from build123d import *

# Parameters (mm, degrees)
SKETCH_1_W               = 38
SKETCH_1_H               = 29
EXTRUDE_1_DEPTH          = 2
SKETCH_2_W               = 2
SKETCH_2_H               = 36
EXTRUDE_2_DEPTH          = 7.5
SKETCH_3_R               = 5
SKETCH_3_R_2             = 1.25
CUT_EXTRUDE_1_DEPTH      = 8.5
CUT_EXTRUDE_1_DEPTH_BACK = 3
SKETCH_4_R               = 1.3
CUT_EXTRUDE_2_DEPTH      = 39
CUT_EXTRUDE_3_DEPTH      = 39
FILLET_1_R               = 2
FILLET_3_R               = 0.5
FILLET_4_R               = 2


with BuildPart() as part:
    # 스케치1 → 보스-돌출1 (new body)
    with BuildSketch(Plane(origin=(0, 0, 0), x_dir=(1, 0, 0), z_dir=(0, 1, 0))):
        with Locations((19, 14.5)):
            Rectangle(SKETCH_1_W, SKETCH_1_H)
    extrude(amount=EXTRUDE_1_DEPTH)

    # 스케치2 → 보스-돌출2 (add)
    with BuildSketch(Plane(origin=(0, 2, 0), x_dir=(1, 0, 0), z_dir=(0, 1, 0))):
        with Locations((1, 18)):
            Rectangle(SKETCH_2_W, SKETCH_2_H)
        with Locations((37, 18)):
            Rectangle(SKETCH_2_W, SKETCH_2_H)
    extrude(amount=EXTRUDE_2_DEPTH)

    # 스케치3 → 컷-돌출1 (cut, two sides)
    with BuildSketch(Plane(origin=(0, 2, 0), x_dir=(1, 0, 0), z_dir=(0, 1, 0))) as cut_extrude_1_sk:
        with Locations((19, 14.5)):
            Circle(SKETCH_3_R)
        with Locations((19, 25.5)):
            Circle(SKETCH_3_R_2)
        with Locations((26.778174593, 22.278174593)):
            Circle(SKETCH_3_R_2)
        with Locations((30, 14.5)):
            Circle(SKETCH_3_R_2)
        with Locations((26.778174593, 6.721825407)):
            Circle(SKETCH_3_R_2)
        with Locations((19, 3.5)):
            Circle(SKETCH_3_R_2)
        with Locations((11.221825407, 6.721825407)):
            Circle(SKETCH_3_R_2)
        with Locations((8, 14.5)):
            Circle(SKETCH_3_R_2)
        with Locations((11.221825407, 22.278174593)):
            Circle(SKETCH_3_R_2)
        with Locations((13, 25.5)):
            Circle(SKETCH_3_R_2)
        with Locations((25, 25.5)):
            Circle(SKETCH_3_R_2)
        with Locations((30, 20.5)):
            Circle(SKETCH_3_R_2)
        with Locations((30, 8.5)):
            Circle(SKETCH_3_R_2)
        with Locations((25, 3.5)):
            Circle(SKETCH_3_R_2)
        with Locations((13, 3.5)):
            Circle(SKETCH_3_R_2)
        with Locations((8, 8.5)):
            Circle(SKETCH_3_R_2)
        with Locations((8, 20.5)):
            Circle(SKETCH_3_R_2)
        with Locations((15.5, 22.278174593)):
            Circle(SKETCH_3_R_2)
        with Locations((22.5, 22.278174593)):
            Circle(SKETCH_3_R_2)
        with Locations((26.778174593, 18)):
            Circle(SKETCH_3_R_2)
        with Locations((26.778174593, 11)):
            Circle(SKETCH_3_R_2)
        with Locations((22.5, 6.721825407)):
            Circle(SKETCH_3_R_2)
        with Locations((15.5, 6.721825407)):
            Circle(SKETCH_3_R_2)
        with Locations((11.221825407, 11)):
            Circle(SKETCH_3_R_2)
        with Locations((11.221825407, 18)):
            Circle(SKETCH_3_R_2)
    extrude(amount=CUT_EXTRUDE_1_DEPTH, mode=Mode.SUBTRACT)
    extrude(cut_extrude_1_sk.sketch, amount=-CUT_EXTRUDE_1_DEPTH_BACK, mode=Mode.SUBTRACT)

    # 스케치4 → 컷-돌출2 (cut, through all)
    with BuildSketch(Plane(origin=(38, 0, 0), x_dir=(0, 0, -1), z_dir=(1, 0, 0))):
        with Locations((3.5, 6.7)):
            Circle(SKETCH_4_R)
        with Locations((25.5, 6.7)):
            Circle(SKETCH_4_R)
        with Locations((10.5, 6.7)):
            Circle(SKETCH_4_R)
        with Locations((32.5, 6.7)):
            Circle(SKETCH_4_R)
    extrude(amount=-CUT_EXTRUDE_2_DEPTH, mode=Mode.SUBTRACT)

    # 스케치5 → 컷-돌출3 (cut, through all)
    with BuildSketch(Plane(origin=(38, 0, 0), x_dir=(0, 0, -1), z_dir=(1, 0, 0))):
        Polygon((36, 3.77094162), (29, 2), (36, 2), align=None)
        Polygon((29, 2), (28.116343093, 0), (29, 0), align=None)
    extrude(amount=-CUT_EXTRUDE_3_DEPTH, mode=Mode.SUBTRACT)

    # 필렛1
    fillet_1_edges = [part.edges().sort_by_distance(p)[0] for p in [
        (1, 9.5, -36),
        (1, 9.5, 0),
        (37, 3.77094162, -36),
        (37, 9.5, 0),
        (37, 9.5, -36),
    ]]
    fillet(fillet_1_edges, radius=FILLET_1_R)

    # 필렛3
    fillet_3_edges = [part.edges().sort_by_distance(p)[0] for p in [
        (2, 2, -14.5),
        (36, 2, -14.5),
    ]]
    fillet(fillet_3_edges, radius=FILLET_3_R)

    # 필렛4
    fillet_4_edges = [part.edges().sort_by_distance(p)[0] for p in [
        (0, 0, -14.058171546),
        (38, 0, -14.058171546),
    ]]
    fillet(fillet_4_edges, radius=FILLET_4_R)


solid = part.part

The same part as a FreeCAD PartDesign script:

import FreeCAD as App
import Part
import Sketcher

V = App.Vector
Q = App.Units.Quantity


def edges_at(feature, points):
    """Names of the edges that pass closest to the given points."""
    edges = feature.Shape.Edges
    near = lambda p: min(range(len(edges)), key=lambda i: edges[i].distToShape(Part.Vertex(*p))[0])
    return sorted({f"Edge{near(p) + 1}" for p in points})


def add_polygon(sketch, points):
    """Adds a closed chain of lines whose ends are joined by coincident constraints."""
    first, n = sketch.GeometryCount, len(points)
    for a, b in zip(points, points[1:] + points[:1]):
        sketch.addGeometry(Part.LineSegment(App.Vector(*a, 0), App.Vector(*b, 0)), False)
    for i in range(n):
        sketch.addConstraint(Sketcher.Constraint("Coincident", first + i, 2, first + (i + 1) % n, 1))

doc = App.newDocument("Part")
body = doc.addObject("PartDesign::Body", "Body")

sketch1 = body.newObject("Sketcher::SketchObject", "Sketch")
sketch1.AttachmentSupport = (doc.getObject("XZ_Plane"), [""])
sketch1.MapMode = "FlatFace"
add_polygon(sketch1, [(0, -29), (0, 0), (38, 0), (38, -29)])
sketch1.addConstraint([
    Sketcher.Constraint("Vertical", 0),
    Sketcher.Constraint("Horizontal", 1),
    Sketcher.Constraint("Vertical", 2),
    Sketcher.Constraint("Horizontal", 3),
    Sketcher.Constraint("Coincident", 0, 2, -1, 1),
    Sketcher.Constraint("DistanceX", 1, 1, 1, 2, Q("38 mm")),
    Sketcher.Constraint("DistanceY", 0, 1, 0, 2, Q("29 mm")),
])
pad1 = body.newObject("PartDesign::Pad", "Pad")
pad1.Profile = sketch1
pad1.Length = 2
pad1.Reversed = True

sketch2 = body.newObject("Sketcher::SketchObject", "Sketch001")
sketch2.AttachmentSupport = (doc.getObject("XZ_Plane"), [""])
sketch2.MapMode = "FlatFace"
sketch2.AttachmentOffset = App.Placement(V(0, 0, -2), App.Rotation())
add_polygon(sketch2, [(0, -36), (0, 0), (2, 0), (2, -36)])
add_polygon(sketch2, [(36, -36), (36, 0), (38, 0), (38, -36)])
sketch2.addConstraint([
    Sketcher.Constraint("Vertical", 0),
    Sketcher.Constraint("Horizontal", 1),
    Sketcher.Constraint("Vertical", 2),
    Sketcher.Constraint("Horizontal", 3),
    Sketcher.Constraint("Vertical", 4),
    Sketcher.Constraint("Horizontal", 5),
    Sketcher.Constraint("Vertical", 6),
    Sketcher.Constraint("Horizontal", 7),
    Sketcher.Constraint("Coincident", 0, 2, -1, 1),
    Sketcher.Constraint("PointOnObject", 4, 2, -1),
    Sketcher.Constraint("Horizontal", 3, 2, 6, 2),
    Sketcher.Constraint("Equal", 3, 5),
    Sketcher.Constraint("DistanceX", 1, 1, 1, 2, Q("2 mm")),
    Sketcher.Constraint("DistanceY", 0, 1, 0, 2, Q("36 mm")),
    Sketcher.Constraint("DistanceX", -1, 1, 4, 2, Q("36 mm")),
])
pad2 = body.newObject("PartDesign::Pad", "Pad001")
pad2.Profile = sketch2
pad2.Length = 7.5
pad2.Reversed = True

sketch3 = body.newObject("Sketcher::SketchObject", "Sketch002")
sketch3.AttachmentSupport = (doc.getObject("XZ_Plane"), [""])
sketch3.MapMode = "FlatFace"
sketch3.AttachmentOffset = App.Placement(V(0, 0, -2), App.Rotation())
sketch3.addGeometry([
    Part.Circle(V(19, -14.5, 0), V(0, 0, 1), 5),
    Part.Circle(V(19, -25.5, 0), V(0, 0, 1), 1.2),
    Part.Circle(V(26.8, -22.3, 0), V(0, 0, 1), 1.2),
    Part.Circle(V(30, -14.5, 0), V(0, 0, 1), 1.2),
    Part.Circle(V(26.8, -6.7, 0), V(0, 0, 1), 1.2),
    Part.Circle(V(19, -3.5, 0), V(0, 0, 1), 1.2),
    Part.Circle(V(11.2, -6.7, 0), V(0, 0, 1), 1.2),
    Part.Circle(V(8, -14.5, 0), V(0, 0, 1), 1.2),
    Part.Circle(V(11.2, -22.3, 0), V(0, 0, 1), 1.2),
    Part.Circle(V(13, -25.5, 0), V(0, 0, 1), 1.2),
    Part.Circle(V(25, -25.5, 0), V(0, 0, 1), 1.2),
    Part.Circle(V(30, -20.5, 0), V(0, 0, 1), 1.2),
    Part.Circle(V(30, -8.5, 0), V(0, 0, 1), 1.2),
    Part.Circle(V(25, -3.5, 0), V(0, 0, 1), 1.2),
    Part.Circle(V(13, -3.5, 0), V(0, 0, 1), 1.2),
    Part.Circle(V(8, -8.5, 0), V(0, 0, 1), 1.2),
    Part.Circle(V(8, -20.5, 0), V(0, 0, 1), 1.2),
    Part.Circle(V(15.5, -22.3, 0), V(0, 0, 1), 1.2),
    Part.Circle(V(22.5, -22.3, 0), V(0, 0, 1), 1.2),
    Part.Circle(V(26.8, -18, 0), V(0, 0, 1), 1.2),
    Part.Circle(V(26.8, -11, 0), V(0, 0, 1), 1.2),
    Part.Circle(V(22.5, -6.7, 0), V(0, 0, 1), 1.2),
    Part.Circle(V(15.5, -6.7, 0), V(0, 0, 1), 1.2),
    Part.Circle(V(11.2, -11, 0), V(0, 0, 1), 1.2),
    Part.Circle(V(11.2, -18, 0), V(0, 0, 1), 1.2),
], False)
sketch3.addConstraint([
    Sketcher.Constraint("Equal", 1, 2),
    Sketcher.Constraint("Equal", 2, 3),
    Sketcher.Constraint("Equal", 3, 4),
    Sketcher.Constraint("Equal", 4, 5),
    Sketcher.Constraint("Equal", 5, 6),
    Sketcher.Constraint("Equal", 6, 7),
    Sketcher.Constraint("Equal", 7, 8),
    Sketcher.Constraint("Equal", 8, 9),
    Sketcher.Constraint("Equal", 9, 10),
    Sketcher.Constraint("Equal", 10, 11),
    Sketcher.Constraint("Equal", 11, 12),
    Sketcher.Constraint("Equal", 12, 13),
    Sketcher.Constraint("Equal", 13, 14),
    Sketcher.Constraint("Equal", 14, 15),
    Sketcher.Constraint("Equal", 15, 16),
    Sketcher.Constraint("Equal", 16, 17),
    Sketcher.Constraint("Equal", 17, 18),
    Sketcher.Constraint("Equal", 18, 19),
    Sketcher.Constraint("Equal", 19, 20),
    Sketcher.Constraint("Equal", 20, 21),
    Sketcher.Constraint("Equal", 21, 22),
    Sketcher.Constraint("Equal", 22, 23),
    Sketcher.Constraint("Equal", 23, 24),
    Sketcher.Constraint("Horizontal", 0, 3, 3, 3),
    Sketcher.Constraint("Horizontal", 4, 3, 6, 3),
    Sketcher.Constraint("Horizontal", 3, 3, 7, 3),
    Sketcher.Constraint("Horizontal", 2, 3, 8, 3),
    Sketcher.Constraint("Horizontal", 1, 3, 9, 3),
    Sketcher.Constraint("Horizontal", 9, 3, 10, 3),
    Sketcher.Constraint("Horizontal", 5, 3, 13, 3),
    Sketcher.Constraint("Horizontal", 13, 3, 14, 3),
    Sketcher.Constraint("Horizontal", 12, 3, 15, 3),
    Sketcher.Constraint("Horizontal", 11, 3, 16, 3),
    Sketcher.Constraint("Horizontal", 8, 3, 17, 3),
    Sketcher.Constraint("Horizontal", 17, 3, 18, 3),
    Sketcher.Constraint("Horizontal", 6, 3, 21, 3),
    Sketcher.Constraint("Horizontal", 21, 3, 22, 3),
    Sketcher.Constraint("Horizontal", 20, 3, 23, 3),
    Sketcher.Constraint("Horizontal", 19, 3, 24, 3),
    Sketcher.Constraint("Vertical", 0, 3, 1, 3),
    Sketcher.Constraint("Vertical", 2, 3, 4, 3),
    Sketcher.Constraint("Vertical", 1, 3, 5, 3),
    Sketcher.Constraint("Vertical", 6, 3, 8, 3),
    Sketcher.Constraint("Vertical", 3, 3, 11, 3),
    Sketcher.Constraint("Vertical", 11, 3, 12, 3),
    Sketcher.Constraint("Vertical", 10, 3, 13, 3),
    Sketcher.Constraint("Vertical", 9, 3, 14, 3),
    Sketcher.Constraint("Vertical", 7, 3, 15, 3),
    Sketcher.Constraint("Vertical", 15, 3, 16, 3),
    Sketcher.Constraint("Vertical", 4, 3, 19, 3),
    Sketcher.Constraint("Vertical", 19, 3, 20, 3),
    Sketcher.Constraint("Vertical", 18, 3, 21, 3),
    Sketcher.Constraint("Vertical", 17, 3, 22, 3),
    Sketcher.Constraint("Vertical", 8, 3, 23, 3),
    Sketcher.Constraint("Vertical", 23, 3, 24, 3),
    Sketcher.Constraint("Diameter", 0, Q("10 mm")),
    Sketcher.Constraint("Diameter", 1, Q("2.5 mm")),
    Sketcher.Constraint("DistanceX", -1, 1, 0, 3, Q("19 mm")),
    Sketcher.Constraint("DistanceX", -1, 1, 3, 3, Q("30 mm")),
    Sketcher.Constraint("DistanceX", -1, 1, 7, 3, Q("8 mm")),
    Sketcher.Constraint("DistanceX", -1, 1, 9, 3, Q("13 mm")),
    Sketcher.Constraint("DistanceX", -1, 1, 10, 3, Q("25 mm")),
    Sketcher.Constraint("DistanceY", 19, 3, -1, 1, Q("18 mm")),
    Sketcher.Constraint("DistanceY", 20, 3, -1, 1, Q("11 mm")),
    Sketcher.Constraint("DistanceY", 1, 3, 0, 3, Q("11 mm")),
    Sketcher.Constraint("DistanceY", 0, 3, 5, 3, Q("11 mm")),
    Sketcher.Constraint("DistanceY", 11, 3, 3, 3, Q("6 mm")),
    Sketcher.Constraint("DistanceY", 3, 3, 12, 3, Q("6 mm")),
    Sketcher.Constraint("DistanceX", 17, 3, 18, 3, Q("7 mm")),
    Sketcher.Constraint("DistanceY", 0, 3, -1, 1, Q("14.5 mm")),
    Sketcher.Constraint("DistanceX", -1, 1, 17, 3, Q("15.5 mm")),
    Sketcher.Constraint("DistanceY", 2, 3, 4, 3, Q("15.556349 mm")),
    Sketcher.Constraint("DistanceX", 6, 3, 4, 3, Q("15.556349 mm")),
    Sketcher.Constraint("DistanceX", -1, 1, 2, 3, Q("26.778175 mm")),
    Sketcher.Constraint("DistanceY", 2, 3, -1, 1, Q("22.278175 mm")),
])
pocket1 = body.newObject("PartDesign::Pocket", "Pocket")
pocket1.Profile = sketch3
pocket1.Type = "ThroughAll"
pocket1.Midplane = True

sketch4 = body.newObject("Sketcher::SketchObject", "Sketch003")
sketch4.AttachmentSupport = (doc.getObject("YZ_Plane"), [""])
sketch4.MapMode = "FlatFace"
sketch4.AttachmentOffset = App.Placement(V(0, 0, 38), App.Rotation())
sketch4.addGeometry([
    Part.Circle(V(6.7, -3.5, 0), V(0, 0, 1), 1.3),
    Part.Circle(V(6.7, -25.5, 0), V(0, 0, 1), 1.3),
    Part.Circle(V(6.7, -10.5, 0), V(0, 0, 1), 1.3),
    Part.Circle(V(6.7, -32.5, 0), V(0, 0, 1), 1.3),
], False)
sketch4.addConstraint([
    Sketcher.Constraint("Equal", 0, 1),
    Sketcher.Constraint("Equal", 1, 2),
    Sketcher.Constraint("Equal", 2, 3),
    Sketcher.Constraint("Vertical", 0, 3, 1, 3),
    Sketcher.Constraint("Vertical", 1, 3, 2, 3),
    Sketcher.Constraint("Vertical", 2, 3, 3, 3),
    Sketcher.Constraint("Diameter", 0, Q("2.6 mm")),
    Sketcher.Constraint("DistanceY", 1, 3, 0, 3, Q("22 mm")),
    Sketcher.Constraint("DistanceY", 2, 3, 0, 3, Q("7 mm")),
    Sketcher.Constraint("DistanceY", 3, 3, 1, 3, Q("7 mm")),
    Sketcher.Constraint("DistanceX", -1, 1, 0, 3, Q("6.7 mm")),
    Sketcher.Constraint("DistanceY", 0, 3, -1, 1, Q("3.5 mm")),
])
pocket2 = body.newObject("PartDesign::Pocket", "Pocket001")
pocket2.Profile = sketch4
pocket2.Type = "ThroughAll"

sketch5 = body.newObject("Sketcher::SketchObject", "Sketch004")
sketch5.AttachmentSupport = (doc.getObject("YZ_Plane"), [""])
sketch5.MapMode = "FlatFace"
sketch5.AttachmentOffset = App.Placement(V(0, 0, 38), App.Rotation())
add_polygon(sketch5, [(3.8, -36), (2, -29), (2, -36)])
add_polygon(sketch5, [(2, -29), (0, -28.1), (0, -29)])
sketch5.addConstraint([
    Sketcher.Constraint("Vertical", 1),
    Sketcher.Constraint("Horizontal", 2),
    Sketcher.Constraint("Vertical", 4),
    Sketcher.Constraint("Horizontal", 5),
    Sketcher.Constraint("Coincident", 5, 2, 0, 2),
    Sketcher.Constraint("PointOnObject", 3, 2, -2),
    Sketcher.Constraint("DistanceX", 5, 1, 5, 2, Q("2 mm")),
    Sketcher.Constraint("DistanceY", 1, 2, 1, 1, Q("7 mm")),
    Sketcher.Constraint("DistanceY", 0, 2, -1, 1, Q("29 mm")),
    Sketcher.Constraint("DistanceX", 2, 1, 2, 2, Q("1.770942 mm")),
    Sketcher.Constraint("DistanceY", 4, 2, 4, 1, Q("0.883657 mm")),
])
pocket3 = body.newObject("PartDesign::Pocket", "Pocket002")
pocket3.Profile = sketch5
pocket3.Type = "ThroughAll"
doc.recompute()

fillet = body.newObject("PartDesign::Fillet", "Fillet")
fillet.Base = (pocket3, edges_at(pocket3, [
    (1, 9.5, -36),
    (1, 9.5, 0),
    (37, 3.771, -36),
    (37, 9.5, 0),
    (37, 9.5, -36),
]))
fillet.Radius = 2
doc.recompute()

fillet2 = body.newObject("PartDesign::Fillet", "Fillet001")
fillet2.Base = (fillet, edges_at(fillet, [(2, 2, -14.5), (36, 2, -14.5)]))
fillet2.Radius = 0.5
doc.recompute()

fillet3 = body.newObject("PartDesign::Fillet", "Fillet002")
fillet3.Base = (fillet2, edges_at(fillet2, [(0, 0, -14.058), (38, 0, -14.058)]))
fillet3.Radius = 2

doc.recompute()
